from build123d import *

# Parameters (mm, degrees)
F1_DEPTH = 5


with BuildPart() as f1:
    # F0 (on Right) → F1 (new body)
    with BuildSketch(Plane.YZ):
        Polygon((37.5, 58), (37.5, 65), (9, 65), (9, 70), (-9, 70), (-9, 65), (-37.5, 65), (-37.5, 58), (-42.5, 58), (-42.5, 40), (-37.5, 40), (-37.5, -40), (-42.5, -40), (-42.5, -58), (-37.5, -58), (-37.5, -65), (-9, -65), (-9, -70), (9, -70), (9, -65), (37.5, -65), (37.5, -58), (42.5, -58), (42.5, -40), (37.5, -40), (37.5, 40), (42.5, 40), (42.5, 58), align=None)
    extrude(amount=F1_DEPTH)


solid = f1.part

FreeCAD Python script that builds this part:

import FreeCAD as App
import Part
import Sketcher
from FreeCAD import Vector

doc = App.newDocument("Part")
params = doc.addObject("Spreadsheet::Sheet", "Params")
for row, (alias, value) in enumerate([
    ("sketch1_width", "18 mm"),
    ("sketch1_width2", "5 mm"),
    ("sketch1_height", "7 mm"),
    ("sketch1_height2", "80 mm"),
    ("sketch1_width3", "28.5 mm"),
    ("pad1_length", "5 mm"),
], start=1):
    params.set(f"A{row}", alias)
    params.set(f"B{row}", "=" + value)
    params.setAlias(f"B{row}", alias)

body = doc.addObject("PartDesign::Body", "Body")

# Sketch on YZ plane
sketch1 = doc.addObject("Sketcher::SketchObject", "Sketch")
body.addObject(sketch1)
sketch1.AttachmentSupport = (doc.YZ_Plane, [""])
sketch1.MapMode = "FlatFace"
sketch1.addGeometry([
    Part.LineSegment(Vector(37.5, 58, 0), Vector(37.5, 65, 0)),  # 0
    Part.LineSegment(Vector(37.5, 65, 0), Vector(9, 65, 0)),  # 1
    Part.LineSegment(Vector(9, 65, 0), Vector(9, 70, 0)),  # 2
    Part.LineSegment(Vector(9, 70, 0), Vector(-9, 70, 0)),  # 3
    Part.LineSegment(Vector(-9, 70, 0), Vector(-9, 65, 0)),  # 4
    Part.LineSegment(Vector(-9, 65, 0), Vector(-37.5, 65, 0)),  # 5
    Part.LineSegment(Vector(-37.5, 65, 0), Vector(-37.5, 58, 0)),  # 6
    Part.LineSegment(Vector(-37.5, 58, 0), Vector(-42.5, 58, 0)),  # 7
    Part.LineSegment(Vector(-42.5, 58, 0), Vector(-42.5, 40, 0)),  # 8
    Part.LineSegment(Vector(-42.5, 40, 0), Vector(-37.5, 40, 0)),  # 9
    Part.LineSegment(Vector(-37.5, 40, 0), Vector(-37.5, -40, 0)),  # 10
    Part.LineSegment(Vector(-37.5, -40, 0), Vector(-42.5, -40, 0)),  # 11
    Part.LineSegment(Vector(-42.5, -40, 0), Vector(-42.5, -58, 0)),  # 12
    Part.LineSegment(Vector(-42.5, -58, 0), Vector(-37.5, -58, 0)),  # 13
    Part.LineSegment(Vector(-37.5, -58, 0), Vector(-37.5, -65, 0)),  # 14
    Part.LineSegment(Vector(-37.5, -65, 0), Vector(-9, -65, 0)),  # 15
    Part.LineSegment(Vector(-9, -65, 0), Vector(-9, -70, 0)),  # 16
    Part.LineSegment(Vector(-9, -70, 0), Vector(9, -70, 0)),  # 17
    Part.LineSegment(Vector(9, -70, 0), Vector(9, -65, 0)),  # 18
    Part.LineSegment(Vector(9, -65, 0), Vector(37.5, -65, 0)),  # 19
    Part.LineSegment(Vector(37.5, -65, 0), Vector(37.5, -58, 0)),  # 20
    Part.LineSegment(Vector(37.5, -58, 0), Vector(42.5, -58, 0)),  # 21
    Part.LineSegment(Vector(42.5, -58, 0), Vector(42.5, -40, 0)),  # 22
    Part.LineSegment(Vector(42.5, -40, 0), Vector(37.5, -40, 0)),  # 23
    Part.LineSegment(Vector(37.5, -40, 0), Vector(37.5, 40, 0)),  # 24
    Part.LineSegment(Vector(37.5, 40, 0), Vector(42.5, 40, 0)),  # 25
    Part.LineSegment(Vector(42.5, 40, 0), Vector(42.5, 58, 0)),  # 26
    Part.LineSegment(Vector(42.5, 58, 0), Vector(37.5, 58, 0)),  # 27
], False)
sketch1.addConstraint([
    Sketcher.Constraint("Coincident", 0, 2, 1, 1),
    Sketcher.Constraint("Coincident", 1, 2, 2, 1),
    Sketcher.Constraint("Coincident", 2, 2, 3, 1),
    Sketcher.Constraint("Coincident", 3, 2, 4, 1),
    Sketcher.Constraint("Coincident", 4, 2, 5, 1),
    Sketcher.Constraint("Coincident", 5, 2, 6, 1),
    Sketcher.Constraint("Coincident", 6, 2, 7, 1),
    Sketcher.Constraint("Coincident", 7, 2, 8, 1),
    Sketcher.Constraint("Coincident", 8, 2, 9, 1),
    Sketcher.Constraint("Coincident", 9, 2, 10, 1),
    Sketcher.Constraint("Coincident", 10, 2, 11, 1),
    Sketcher.Constraint("Coincident", 11, 2, 12, 1),
    Sketcher.Constraint("Coincident", 12, 2, 13, 1),
    Sketcher.Constraint("Coincident", 13, 2, 14, 1),
    Sketcher.Constraint("Coincident", 14, 2, 15, 1),
    Sketcher.Constraint("Coincident", 15, 2, 16, 1),
    Sketcher.Constraint("Coincident", 16, 2, 17, 1),
    Sketcher.Constraint("Coincident", 17, 2, 18, 1),
    Sketcher.Constraint("Coincident", 18, 2, 19, 1),
    Sketcher.Constraint("Coincident", 19, 2, 20, 1),
    Sketcher.Constraint("Coincident", 20, 2, 21, 1),
    Sketcher.Constraint("Coincident", 21, 2, 22, 1),
    Sketcher.Constraint("Coincident", 22, 2, 23, 1),
    Sketcher.Constraint("Coincident", 23, 2, 24, 1),
    Sketcher.Constraint("Coincident", 24, 2, 25, 1),
    Sketcher.Constraint("Coincident", 25, 2, 26, 1),
    Sketcher.Constraint("Coincident", 26, 2, 27, 1),
    Sketcher.Constraint("Coincident", 27, 2, 0, 1),
    Sketcher.Constraint("Vertical", 0),
    Sketcher.Constraint("Horizontal", 1),
    Sketcher.Constraint("Vertical", 2),
    Sketcher.Constraint("Horizontal", 3),
    Sketcher.Constraint("Vertical", 4),
    Sketcher.Constraint("Horizontal", 5),
    Sketcher.Constraint("Vertical", 6),
    Sketcher.Constraint("Horizontal", 7),
    Sketcher.Constraint("Vertical", 8),
    Sketcher.Constraint("Horizontal", 9),
    Sketcher.Constraint("Vertical", 10),
    Sketcher.Constraint("Horizontal", 11),
    Sketcher.Constraint("Vertical", 12),
    Sketcher.Constraint("Horizontal", 13),
    Sketcher.Constraint("Vertical", 14),
    Sketcher.Constraint("Horizontal", 15),
    Sketcher.Constraint("Vertical", 16),
    Sketcher.Constraint("Horizontal", 17),
    Sketcher.Constraint("Vertical", 18),
    Sketcher.Constraint("Horizontal", 19),
    Sketcher.Constraint("Vertical", 20),
    Sketcher.Constraint("Horizontal", 21),
    Sketcher.Constraint("Vertical", 22),
    Sketcher.Constraint("Horizontal", 23),
    Sketcher.Constraint("Vertical", 24),
    Sketcher.Constraint("Horizontal", 25),
    Sketcher.Constraint("Vertical", 26),
    Sketcher.Constraint("Horizontal", 27),
    Sketcher.Constraint("Symmetric", 0, 2, 14, 2, -1, 1),
    Sketcher.Constraint("Symmetric", 2, 2, 16, 2, -1, 1),
    Sketcher.Constraint("Symmetric", 4, 2, 18, 2, -1, 1),
    Sketcher.Constraint("Symmetric", 6, 2, 20, 2, -1, 1),
    Sketcher.Constraint("Symmetric", 8, 2, 22, 2, -1, 1),
    Sketcher.Constraint("Symmetric", 10, 2, 24, 2, -1, 1),
    Sketcher.Constraint("Symmetric", 12, 2, 26, 2, -1, 1),
    Sketcher.Constraint("Symmetric", 1, 2, 4, 2, -2),
    Sketcher.Constraint("Symmetric", 13, 2, 20, 2, -2),
    Sketcher.Constraint("Symmetric", 11, 2, 22, 2, -2),
    Sketcher.Constraint("Vertical", 6, 2, 9, 2),
    Sketcher.Constraint("Equal", 27, 2),
    Sketcher.Constraint("Equal", 17, 8),
    Sketcher.Constraint("DistanceX", 3, 2, 3, 1, 18.0),
    Sketcher.Constraint("DistanceX", 7, 2, 7, 1, 5.0),
    Sketcher.Constraint("DistanceY", 0, 1, 0, 2, 7.0),
    Sketcher.Constraint("DistanceY", 10, 2, 10, 1, 80.0),
    Sketcher.Constraint("DistanceX", 1, 2, 1, 1, 28.5),
])
sketch1.setExpression("Constraints[69]", "Params.sketch1_width")
sketch1.setExpression("Constraints[70]", "Params.sketch1_width2")
sketch1.setExpression("Constraints[71]", "Params.sketch1_height")
sketch1.setExpression("Constraints[72]", "Params.sketch1_height2")
sketch1.setExpression("Constraints[73]", "Params.sketch1_width3")
pad1 = doc.addObject("PartDesign::Pad", "Pad")
body.addObject(pad1)
pad1.Profile = sketch1
pad1.setExpression("Length", "Params.pad1_length")

doc.recompute()
